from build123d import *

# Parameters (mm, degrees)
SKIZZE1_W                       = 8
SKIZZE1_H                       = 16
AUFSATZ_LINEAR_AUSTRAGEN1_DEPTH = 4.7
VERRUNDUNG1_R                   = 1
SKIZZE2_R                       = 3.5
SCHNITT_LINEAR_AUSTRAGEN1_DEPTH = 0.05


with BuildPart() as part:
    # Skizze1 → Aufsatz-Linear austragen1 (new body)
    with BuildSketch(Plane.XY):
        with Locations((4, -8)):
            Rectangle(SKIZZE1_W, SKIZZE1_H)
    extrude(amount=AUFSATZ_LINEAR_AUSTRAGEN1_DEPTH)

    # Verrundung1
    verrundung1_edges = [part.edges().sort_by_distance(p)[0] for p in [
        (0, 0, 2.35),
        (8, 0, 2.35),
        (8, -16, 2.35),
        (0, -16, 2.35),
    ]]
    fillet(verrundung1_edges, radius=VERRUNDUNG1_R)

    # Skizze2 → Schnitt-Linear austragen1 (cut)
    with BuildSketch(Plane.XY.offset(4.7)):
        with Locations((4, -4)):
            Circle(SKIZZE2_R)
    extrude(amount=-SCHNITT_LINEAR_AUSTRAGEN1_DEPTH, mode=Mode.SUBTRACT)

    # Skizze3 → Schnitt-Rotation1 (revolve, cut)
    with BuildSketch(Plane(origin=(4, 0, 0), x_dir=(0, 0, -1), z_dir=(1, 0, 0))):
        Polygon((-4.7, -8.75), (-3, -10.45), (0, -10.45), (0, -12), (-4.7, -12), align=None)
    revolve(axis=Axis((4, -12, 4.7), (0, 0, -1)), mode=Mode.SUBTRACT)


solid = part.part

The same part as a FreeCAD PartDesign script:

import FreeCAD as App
import Part
import Sketcher

V = App.Vector
Q = App.Units.Quantity


def edges_at(feature, points):
    """Names of the edges that pass closest to the given points."""
    edges = feature.Shape.Edges
    near = lambda p: min(range(len(edges)), key=lambda i: edges[i].distToShape(Part.Vertex(*p))[0])
    return sorted({f"Edge{near(p) + 1}" for p in points})

doc = App.newDocument("Part")
body = doc.addObject("PartDesign::Body", "Body")

# Sketch on XY plane
sketch1 = doc.addObject("Sketcher::SketchObject", "Sketch")
body.addObject(sketch1)
sketch1.AttachmentSupport = (doc.XY_Plane, [""])
sketch1.MapMode = "FlatFace"
sketch1.addGeometry([
    Part.LineSegment(V(0, 0, 0), V(0, -16, 0)),
    Part.LineSegment(V(0, -16, 0), V(8, -16, 0)),
    Part.LineSegment(V(8, -16, 0), V(8, 0, 0)),
    Part.LineSegment(V(8, 0, 0), V(0, 0, 0)),
], False)
sketch1.addConstraint([
    Sketcher.Constraint("Coincident", 0, 2, 1, 1),
    Sketcher.Constraint("Coincident", 1, 2, 2, 1),
    Sketcher.Constraint("Coincident", 2, 2, 3, 1),
    Sketcher.Constraint("Coincident", 3, 2, 0, 1),
    Sketcher.Constraint("Vertical", 0),
    Sketcher.Constraint("Horizontal", 1),
    Sketcher.Constraint("Vertical", 2),
    Sketcher.Constraint("Horizontal", 3),
    Sketcher.Constraint("Coincident", 3, 2, -1, 1),
    Sketcher.Constraint("DistanceX", 1, 1, 1, 2, 8.0),
    Sketcher.Constraint("DistanceY", 0, 2, 0, 1, 16.0),
])
pad1 = doc.addObject("PartDesign::Pad", "Pad")
body.addObject(pad1)
pad1.Profile = sketch1
pad1.Length = 4.7
doc.recompute()

fillet = doc.addObject("PartDesign::Fillet", "Fillet")
body.addObject(fillet)
fillet.Base = (pad1, edges_at(pad1, [
    (0, 0, 2.35),
    (8, 0, 2.35),
    (8, -16, 2.35),
    (0, -16, 2.35),
]))
fillet.Radius = 1

# Sketch on XY plane
sketch2 = doc.addObject("Sketcher::SketchObject", "Sketch001")
body.addObject(sketch2)
sketch2.AttachmentSupport = (doc.XY_Plane, [""])
sketch2.MapMode = "FlatFace"
sketch2.AttachmentOffset = App.Placement(V(0, 0, 4.7), App.Rotation())
sketch2.addGeometry(Part.Circle(V(4, -4, 0), V(0, 0, 1), 3.5), False)
sketch2.addConstraint([
    Sketcher.Constraint("Diameter", 0, 7.0),
    Sketcher.Constraint("DistanceX", -1, 1, 0, 3, 4.0),
    Sketcher.Constraint("DistanceY", 0, 3, -1, 1, 4.0),
])
pocket1 = doc.addObject("PartDesign::Pocket", "Pocket")
body.addObject(pocket1)
pocket1.Profile = sketch2
pocket1.Length = 0.05

# Sketch on YZ plane
sketch3 = doc.addObject("Sketcher::SketchObject", "Sketch002")
body.addObject(sketch3)
sketch3.AttachmentSupport = (doc.YZ_Plane, [""])
sketch3.MapMode = "FlatFace"
sketch3.AttachmentOffset = App.Placement(V(0, 0, 4), App.Rotation())
sketch3.addGeometry([
    Part.LineSegment(V(-10.4, 3, 0), V(-8.8, 4.7, 0)),  # 0
    Part.LineSegment(V(-8.8, 4.7, 0), V(-12, 4.7, 0)),  # 1
    Part.LineSegment(V(-12, 4.7, 0), V(-12, 0, 0)),  # 2
    Part.LineSegment(V(-12, 0, 0), V(-10.4, 0, 0)),  # 3
    Part.LineSegment(V(-10.4, 0, 0), V(-10.4, 3, 0)),  # 4
], False)
sketch3.addGeometry(Part.LineSegment(V(-12, 4.7, 0), V(-12, 0, 0)), True)  # axis
sketch3.addConstraint([
    Sketcher.Constraint("Coincident", 0, 2, 1, 1),
    Sketcher.Constraint("Coincident", 1, 2, 2, 1),
    Sketcher.Constraint("Coincident", 2, 2, 3, 1),
    Sketcher.Constraint("Coincident", 3, 2, 4, 1),
    Sketcher.Constraint("Coincident", 4, 2, 0, 1),
    Sketcher.Constraint("Horizontal", 1),
    Sketcher.Constraint("Vertical", 2),
    Sketcher.Constraint("Horizontal", 3),
    Sketcher.Constraint("Vertical", 4),
    Sketcher.Constraint("Vertical", 5),
    Sketcher.Constraint("Coincident", 5, 1, 1, 2),
    Sketcher.Constraint("PointOnObject", 2, 2, -1),
    Sketcher.Constraint("PointOnObject", 5, 2, -1),
    Sketcher.Constraint("DistanceY", 4, 1, 4, 2, 3.0),
    Sketcher.Constraint("Angle", 0, Q("45 deg")),
    Sketcher.Constraint("DistanceY", 2, 2, 2, 1, 4.7),
    Sketcher.Constraint("DistanceX", 1, 2, -1, 1, 12.0),
    Sketcher.Constraint("DistanceX", 1, 2, 1, 1, 3.25),
])
groove = doc.addObject("PartDesign::Groove", "Groove")
body.addObject(groove)
groove.Profile = sketch3
groove.ReferenceAxis = (sketch3, ["Axis0"])
groove.Angle = 360

doc.recompute()
